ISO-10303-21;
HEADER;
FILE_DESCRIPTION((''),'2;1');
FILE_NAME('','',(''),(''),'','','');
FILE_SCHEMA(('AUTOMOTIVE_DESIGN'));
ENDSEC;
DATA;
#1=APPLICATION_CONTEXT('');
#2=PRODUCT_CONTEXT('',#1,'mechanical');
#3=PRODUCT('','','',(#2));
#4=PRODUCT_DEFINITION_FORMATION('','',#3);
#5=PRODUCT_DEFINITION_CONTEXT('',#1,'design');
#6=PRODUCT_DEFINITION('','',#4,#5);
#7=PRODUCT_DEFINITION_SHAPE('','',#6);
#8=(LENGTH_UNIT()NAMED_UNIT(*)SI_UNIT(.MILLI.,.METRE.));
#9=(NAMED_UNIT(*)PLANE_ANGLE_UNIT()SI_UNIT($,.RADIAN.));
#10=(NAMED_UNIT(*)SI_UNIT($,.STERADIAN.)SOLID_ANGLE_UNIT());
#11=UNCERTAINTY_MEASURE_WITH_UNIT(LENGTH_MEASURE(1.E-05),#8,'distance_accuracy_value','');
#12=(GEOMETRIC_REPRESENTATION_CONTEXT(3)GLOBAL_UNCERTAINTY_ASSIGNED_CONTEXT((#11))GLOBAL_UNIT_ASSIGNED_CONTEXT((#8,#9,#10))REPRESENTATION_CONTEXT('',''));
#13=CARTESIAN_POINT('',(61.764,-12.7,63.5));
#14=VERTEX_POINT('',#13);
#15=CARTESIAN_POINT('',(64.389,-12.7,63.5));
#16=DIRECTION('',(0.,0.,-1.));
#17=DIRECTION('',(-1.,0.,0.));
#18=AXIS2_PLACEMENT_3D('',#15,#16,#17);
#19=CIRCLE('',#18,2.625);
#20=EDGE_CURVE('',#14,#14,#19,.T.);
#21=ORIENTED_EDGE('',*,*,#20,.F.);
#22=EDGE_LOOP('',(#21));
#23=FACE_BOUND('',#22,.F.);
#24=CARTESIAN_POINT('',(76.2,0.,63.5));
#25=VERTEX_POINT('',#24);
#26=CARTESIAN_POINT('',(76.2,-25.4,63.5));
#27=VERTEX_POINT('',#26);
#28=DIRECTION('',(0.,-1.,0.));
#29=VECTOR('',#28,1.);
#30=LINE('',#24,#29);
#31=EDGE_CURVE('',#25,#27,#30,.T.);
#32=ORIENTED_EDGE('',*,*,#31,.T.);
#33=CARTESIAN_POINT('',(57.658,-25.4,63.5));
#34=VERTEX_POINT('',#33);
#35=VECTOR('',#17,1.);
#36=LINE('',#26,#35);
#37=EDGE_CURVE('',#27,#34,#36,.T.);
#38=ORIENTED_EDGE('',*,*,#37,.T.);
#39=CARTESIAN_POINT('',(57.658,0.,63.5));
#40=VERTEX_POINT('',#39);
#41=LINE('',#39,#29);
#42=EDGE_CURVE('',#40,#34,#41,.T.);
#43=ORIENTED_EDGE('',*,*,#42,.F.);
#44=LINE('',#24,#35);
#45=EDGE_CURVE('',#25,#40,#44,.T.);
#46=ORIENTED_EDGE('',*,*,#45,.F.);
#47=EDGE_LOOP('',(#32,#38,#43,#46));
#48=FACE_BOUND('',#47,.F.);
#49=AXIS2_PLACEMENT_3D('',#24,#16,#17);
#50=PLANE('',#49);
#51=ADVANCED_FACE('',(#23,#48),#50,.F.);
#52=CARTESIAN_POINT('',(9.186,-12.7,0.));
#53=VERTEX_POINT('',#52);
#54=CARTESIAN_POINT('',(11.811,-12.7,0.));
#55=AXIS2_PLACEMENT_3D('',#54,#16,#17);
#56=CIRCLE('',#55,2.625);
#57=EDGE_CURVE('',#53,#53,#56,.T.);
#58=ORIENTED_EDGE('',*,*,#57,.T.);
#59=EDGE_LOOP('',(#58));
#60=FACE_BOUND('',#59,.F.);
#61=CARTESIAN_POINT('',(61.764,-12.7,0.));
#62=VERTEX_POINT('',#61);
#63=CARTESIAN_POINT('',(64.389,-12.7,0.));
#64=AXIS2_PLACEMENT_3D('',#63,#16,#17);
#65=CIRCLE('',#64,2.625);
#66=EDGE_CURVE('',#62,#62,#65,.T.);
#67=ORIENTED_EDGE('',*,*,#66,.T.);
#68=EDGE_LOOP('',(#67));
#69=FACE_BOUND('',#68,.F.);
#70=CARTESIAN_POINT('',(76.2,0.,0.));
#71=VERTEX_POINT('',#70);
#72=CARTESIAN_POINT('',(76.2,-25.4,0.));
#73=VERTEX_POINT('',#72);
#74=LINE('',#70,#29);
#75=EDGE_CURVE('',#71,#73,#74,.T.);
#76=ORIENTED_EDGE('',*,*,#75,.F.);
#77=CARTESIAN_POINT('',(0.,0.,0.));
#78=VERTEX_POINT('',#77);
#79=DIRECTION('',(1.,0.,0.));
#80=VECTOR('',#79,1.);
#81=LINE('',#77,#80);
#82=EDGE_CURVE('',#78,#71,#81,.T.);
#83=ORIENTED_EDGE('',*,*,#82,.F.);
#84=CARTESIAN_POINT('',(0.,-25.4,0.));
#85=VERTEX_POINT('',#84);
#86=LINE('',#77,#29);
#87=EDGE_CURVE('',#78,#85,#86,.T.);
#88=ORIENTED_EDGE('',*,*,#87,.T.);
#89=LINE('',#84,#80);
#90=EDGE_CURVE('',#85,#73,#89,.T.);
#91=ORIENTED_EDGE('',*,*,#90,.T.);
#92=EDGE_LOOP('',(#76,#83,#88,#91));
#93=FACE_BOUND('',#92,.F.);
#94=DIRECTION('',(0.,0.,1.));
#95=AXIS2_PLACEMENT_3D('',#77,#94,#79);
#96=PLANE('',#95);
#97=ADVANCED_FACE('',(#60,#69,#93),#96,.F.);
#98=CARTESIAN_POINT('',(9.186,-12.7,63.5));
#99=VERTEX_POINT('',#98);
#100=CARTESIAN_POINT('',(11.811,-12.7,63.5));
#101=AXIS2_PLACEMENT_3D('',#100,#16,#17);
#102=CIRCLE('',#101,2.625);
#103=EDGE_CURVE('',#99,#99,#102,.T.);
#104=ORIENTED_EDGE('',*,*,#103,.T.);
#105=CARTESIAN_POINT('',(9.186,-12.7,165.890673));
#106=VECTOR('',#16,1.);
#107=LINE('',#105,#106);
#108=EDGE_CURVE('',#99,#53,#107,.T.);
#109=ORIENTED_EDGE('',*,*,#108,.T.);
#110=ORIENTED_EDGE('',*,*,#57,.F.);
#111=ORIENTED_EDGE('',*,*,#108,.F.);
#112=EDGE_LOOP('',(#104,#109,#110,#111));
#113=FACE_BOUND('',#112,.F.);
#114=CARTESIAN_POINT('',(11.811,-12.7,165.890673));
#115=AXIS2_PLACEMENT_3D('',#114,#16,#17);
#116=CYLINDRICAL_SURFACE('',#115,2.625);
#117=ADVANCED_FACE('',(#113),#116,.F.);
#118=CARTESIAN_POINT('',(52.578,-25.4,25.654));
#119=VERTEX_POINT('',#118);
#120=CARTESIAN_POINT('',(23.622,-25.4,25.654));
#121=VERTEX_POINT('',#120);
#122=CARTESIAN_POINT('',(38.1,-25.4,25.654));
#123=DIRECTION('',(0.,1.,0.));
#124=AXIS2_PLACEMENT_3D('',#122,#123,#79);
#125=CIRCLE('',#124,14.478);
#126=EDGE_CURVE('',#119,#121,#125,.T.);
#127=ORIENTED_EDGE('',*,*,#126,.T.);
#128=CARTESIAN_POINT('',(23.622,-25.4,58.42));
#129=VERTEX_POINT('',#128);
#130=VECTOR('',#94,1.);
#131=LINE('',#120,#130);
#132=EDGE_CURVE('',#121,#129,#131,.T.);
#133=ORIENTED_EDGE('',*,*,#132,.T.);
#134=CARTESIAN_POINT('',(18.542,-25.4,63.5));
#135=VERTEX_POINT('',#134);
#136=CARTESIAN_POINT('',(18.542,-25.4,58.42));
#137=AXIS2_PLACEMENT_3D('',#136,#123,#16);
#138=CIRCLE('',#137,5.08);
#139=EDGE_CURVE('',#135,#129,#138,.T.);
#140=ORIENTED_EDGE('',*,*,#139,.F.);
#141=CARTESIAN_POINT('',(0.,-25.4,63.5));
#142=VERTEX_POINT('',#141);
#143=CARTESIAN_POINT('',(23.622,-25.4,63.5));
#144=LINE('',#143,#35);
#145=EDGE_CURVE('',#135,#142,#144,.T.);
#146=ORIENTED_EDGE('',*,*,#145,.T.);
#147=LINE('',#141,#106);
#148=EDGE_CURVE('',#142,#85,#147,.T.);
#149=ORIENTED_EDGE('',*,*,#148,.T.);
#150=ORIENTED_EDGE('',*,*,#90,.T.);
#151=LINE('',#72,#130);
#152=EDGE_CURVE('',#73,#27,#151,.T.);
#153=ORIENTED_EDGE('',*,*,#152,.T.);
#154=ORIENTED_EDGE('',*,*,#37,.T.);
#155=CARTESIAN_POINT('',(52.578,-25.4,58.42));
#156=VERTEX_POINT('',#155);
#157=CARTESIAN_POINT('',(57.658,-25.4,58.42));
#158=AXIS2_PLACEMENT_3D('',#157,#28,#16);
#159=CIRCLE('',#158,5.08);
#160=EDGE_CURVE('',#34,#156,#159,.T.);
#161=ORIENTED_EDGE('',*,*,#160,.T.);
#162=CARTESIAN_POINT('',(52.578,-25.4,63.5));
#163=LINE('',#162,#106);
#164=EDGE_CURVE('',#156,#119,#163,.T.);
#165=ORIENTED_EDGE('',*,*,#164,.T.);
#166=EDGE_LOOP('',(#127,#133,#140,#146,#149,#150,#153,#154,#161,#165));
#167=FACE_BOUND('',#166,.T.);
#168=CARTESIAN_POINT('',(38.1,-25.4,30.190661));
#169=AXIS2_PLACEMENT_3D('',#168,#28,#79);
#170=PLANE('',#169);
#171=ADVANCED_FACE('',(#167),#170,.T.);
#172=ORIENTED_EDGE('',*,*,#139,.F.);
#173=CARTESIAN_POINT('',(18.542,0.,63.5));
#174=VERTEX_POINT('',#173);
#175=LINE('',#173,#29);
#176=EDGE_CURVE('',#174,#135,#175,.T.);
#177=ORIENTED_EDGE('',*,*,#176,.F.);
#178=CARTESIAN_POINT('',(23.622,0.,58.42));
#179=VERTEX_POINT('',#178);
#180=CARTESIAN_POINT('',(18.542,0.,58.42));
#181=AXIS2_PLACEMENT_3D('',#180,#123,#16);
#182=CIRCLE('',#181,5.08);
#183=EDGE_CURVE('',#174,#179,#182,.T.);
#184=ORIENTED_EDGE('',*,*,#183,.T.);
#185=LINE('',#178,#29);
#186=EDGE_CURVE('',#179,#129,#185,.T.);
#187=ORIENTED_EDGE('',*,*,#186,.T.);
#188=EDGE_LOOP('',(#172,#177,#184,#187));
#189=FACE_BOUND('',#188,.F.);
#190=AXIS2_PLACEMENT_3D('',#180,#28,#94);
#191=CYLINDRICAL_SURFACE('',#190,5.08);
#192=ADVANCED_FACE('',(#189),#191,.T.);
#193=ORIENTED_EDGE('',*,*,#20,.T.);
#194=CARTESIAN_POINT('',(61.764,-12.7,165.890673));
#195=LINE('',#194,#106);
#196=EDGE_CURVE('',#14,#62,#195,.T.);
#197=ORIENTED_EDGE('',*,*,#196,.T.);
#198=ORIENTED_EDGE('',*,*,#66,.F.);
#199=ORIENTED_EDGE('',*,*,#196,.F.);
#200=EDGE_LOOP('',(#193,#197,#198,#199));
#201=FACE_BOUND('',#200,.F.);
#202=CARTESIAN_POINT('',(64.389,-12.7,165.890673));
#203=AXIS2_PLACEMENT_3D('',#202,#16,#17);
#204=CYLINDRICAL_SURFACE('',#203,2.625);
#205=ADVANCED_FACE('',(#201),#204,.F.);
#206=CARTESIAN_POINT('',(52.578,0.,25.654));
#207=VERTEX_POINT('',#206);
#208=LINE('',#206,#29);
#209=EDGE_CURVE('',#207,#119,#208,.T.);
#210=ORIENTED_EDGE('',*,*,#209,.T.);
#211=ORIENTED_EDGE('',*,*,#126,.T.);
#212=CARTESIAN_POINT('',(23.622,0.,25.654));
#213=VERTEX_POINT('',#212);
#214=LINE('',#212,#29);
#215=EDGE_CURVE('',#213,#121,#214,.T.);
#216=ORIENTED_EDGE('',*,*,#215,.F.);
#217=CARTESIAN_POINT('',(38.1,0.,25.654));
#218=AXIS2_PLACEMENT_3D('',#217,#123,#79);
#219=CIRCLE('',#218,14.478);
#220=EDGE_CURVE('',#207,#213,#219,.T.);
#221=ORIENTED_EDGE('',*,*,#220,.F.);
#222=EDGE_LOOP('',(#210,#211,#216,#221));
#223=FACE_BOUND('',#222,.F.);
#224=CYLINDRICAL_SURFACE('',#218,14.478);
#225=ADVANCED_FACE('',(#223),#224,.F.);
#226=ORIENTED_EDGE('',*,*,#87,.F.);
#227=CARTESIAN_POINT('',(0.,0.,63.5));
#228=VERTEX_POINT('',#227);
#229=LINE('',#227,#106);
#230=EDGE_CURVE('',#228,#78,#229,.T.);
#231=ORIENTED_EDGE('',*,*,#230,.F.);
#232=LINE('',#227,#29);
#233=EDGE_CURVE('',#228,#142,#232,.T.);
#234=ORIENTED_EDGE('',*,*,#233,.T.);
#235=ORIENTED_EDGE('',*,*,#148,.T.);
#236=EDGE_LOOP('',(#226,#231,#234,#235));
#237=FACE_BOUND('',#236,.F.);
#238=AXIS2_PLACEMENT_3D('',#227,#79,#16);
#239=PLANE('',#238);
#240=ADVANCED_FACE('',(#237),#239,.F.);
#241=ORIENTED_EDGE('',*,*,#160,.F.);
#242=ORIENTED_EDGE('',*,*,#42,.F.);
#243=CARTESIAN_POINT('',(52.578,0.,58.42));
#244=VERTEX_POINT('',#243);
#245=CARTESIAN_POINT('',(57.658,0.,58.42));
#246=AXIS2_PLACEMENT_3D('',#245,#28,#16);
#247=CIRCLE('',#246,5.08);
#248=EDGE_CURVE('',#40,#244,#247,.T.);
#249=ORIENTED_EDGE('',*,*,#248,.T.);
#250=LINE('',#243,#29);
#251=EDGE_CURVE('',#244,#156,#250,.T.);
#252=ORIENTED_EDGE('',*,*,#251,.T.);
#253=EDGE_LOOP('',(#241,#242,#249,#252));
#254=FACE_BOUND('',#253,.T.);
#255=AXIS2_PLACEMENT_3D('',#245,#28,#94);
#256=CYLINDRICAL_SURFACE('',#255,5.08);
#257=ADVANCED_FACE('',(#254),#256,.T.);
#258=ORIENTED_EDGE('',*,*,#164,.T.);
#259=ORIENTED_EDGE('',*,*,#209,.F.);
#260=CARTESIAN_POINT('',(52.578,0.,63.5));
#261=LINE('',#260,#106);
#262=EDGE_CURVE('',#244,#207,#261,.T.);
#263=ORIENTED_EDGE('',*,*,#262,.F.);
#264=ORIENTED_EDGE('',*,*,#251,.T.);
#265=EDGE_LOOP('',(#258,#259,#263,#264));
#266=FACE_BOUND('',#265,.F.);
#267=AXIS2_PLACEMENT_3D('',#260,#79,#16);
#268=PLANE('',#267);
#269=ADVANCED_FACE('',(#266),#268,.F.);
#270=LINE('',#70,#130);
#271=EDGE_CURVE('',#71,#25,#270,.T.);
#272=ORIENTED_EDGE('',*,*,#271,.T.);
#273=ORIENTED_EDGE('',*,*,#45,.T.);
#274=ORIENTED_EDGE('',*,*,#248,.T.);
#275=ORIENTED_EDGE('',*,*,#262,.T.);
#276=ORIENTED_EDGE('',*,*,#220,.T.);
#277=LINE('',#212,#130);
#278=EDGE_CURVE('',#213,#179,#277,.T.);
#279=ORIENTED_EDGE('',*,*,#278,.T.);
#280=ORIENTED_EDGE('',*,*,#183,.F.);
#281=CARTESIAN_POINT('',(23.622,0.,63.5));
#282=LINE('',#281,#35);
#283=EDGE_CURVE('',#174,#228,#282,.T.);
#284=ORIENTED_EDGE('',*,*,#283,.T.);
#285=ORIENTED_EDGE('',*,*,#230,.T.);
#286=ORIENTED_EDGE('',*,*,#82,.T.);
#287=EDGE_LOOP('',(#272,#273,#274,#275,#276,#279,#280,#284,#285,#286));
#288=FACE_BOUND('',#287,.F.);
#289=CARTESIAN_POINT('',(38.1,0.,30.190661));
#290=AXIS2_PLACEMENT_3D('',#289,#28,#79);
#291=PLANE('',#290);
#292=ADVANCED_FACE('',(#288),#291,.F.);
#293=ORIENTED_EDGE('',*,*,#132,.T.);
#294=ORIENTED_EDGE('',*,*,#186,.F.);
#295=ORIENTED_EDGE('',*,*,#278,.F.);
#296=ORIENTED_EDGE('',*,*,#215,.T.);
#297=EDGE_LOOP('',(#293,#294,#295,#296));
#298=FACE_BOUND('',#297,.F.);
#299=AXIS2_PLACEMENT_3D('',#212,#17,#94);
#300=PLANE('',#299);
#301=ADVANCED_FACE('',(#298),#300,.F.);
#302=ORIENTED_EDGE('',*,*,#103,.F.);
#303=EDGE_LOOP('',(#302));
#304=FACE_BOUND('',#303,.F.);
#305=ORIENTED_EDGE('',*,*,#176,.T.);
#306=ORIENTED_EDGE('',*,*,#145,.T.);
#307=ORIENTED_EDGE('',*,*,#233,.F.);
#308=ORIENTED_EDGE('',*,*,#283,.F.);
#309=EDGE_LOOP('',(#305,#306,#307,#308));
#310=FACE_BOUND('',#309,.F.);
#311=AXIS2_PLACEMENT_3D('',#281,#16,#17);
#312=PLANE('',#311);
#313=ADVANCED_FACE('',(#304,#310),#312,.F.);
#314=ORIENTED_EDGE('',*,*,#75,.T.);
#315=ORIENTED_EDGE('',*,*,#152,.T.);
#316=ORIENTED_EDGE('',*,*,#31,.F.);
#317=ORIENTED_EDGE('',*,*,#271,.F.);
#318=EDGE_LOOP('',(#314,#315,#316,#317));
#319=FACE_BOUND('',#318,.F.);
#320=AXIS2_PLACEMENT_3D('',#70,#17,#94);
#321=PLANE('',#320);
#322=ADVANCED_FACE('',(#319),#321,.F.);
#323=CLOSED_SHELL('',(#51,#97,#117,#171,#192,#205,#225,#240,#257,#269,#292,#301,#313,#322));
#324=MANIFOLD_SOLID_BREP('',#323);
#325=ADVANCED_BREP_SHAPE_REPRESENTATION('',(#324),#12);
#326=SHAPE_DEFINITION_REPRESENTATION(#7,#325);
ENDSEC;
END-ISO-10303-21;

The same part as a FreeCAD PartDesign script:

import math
import FreeCAD as App
import Part
import Sketcher
from FreeCAD import Vector
Q = App.Units.Quantity


def edges_at(feature, points):
    """Names of the edges that pass closest to the given points."""
    edges = feature.Shape.Edges
    near = lambda p: min(range(len(edges)), key=lambda i: edges[i].distToShape(Part.Vertex(*p))[0])
    return sorted({f"Edge{near(p) + 1}" for p in points})

doc = App.newDocument("Part")
body = doc.addObject("PartDesign::Body", "Body")

# Sketch on XZ plane
sketch1 = body.newObject("Sketcher::SketchObject", "Sketch")
sketch1.AttachmentSupport = (doc.getObject("XZ_Plane"), [""])
sketch1.MapMode = "FlatFace"
sketch1.addGeometry([
    Part.LineSegment(Vector(0, 63.5, 0), Vector(0, 0, 0)),  # 0
    Part.LineSegment(Vector(0, 0, 0), Vector(76.2, 0, 0)),  # 1
    Part.LineSegment(Vector(76.2, 0, 0), Vector(76.2, 63.5, 0)),  # 2
    Part.LineSegment(Vector(76.2, 63.5, 0), Vector(52.578, 63.5, 0)),  # 3
    Part.LineSegment(Vector(52.578, 63.5, 0), Vector(52.578, 25.654, 0)),  # 4
    Part.ArcOfCircle(Part.Circle(Vector(38.1, 25.654, 0), Vector(0, 0, 1), 14.478), math.radians(180), math.radians(360)),  # 5
    Part.LineSegment(Vector(23.622, 25.654, 0), Vector(23.622, 63.5, 0)),  # 6
    Part.LineSegment(Vector(23.622, 63.5, 0), Vector(0, 63.5, 0)),  # 7
], False)
sketch1.addConstraint([
    Sketcher.Constraint("Coincident", 0, 2, 1, 1),
    Sketcher.Constraint("Coincident", 1, 2, 2, 1),
    Sketcher.Constraint("Coincident", 2, 2, 3, 1),
    Sketcher.Constraint("Coincident", 3, 2, 4, 1),
    Sketcher.Constraint("Tangent", 4, 2, 5, 2),
    Sketcher.Constraint("Tangent", 5, 1, 6, 1),
    Sketcher.Constraint("Coincident", 6, 2, 7, 1),
    Sketcher.Constraint("Coincident", 7, 2, 0, 1),
    Sketcher.Constraint("Vertical", 0),
    Sketcher.Constraint("Horizontal", 1),
    Sketcher.Constraint("Vertical", 2),
    Sketcher.Constraint("Horizontal", 3),
    Sketcher.Constraint("Vertical", 4),
    Sketcher.Constraint("Vertical", 6),
    Sketcher.Constraint("Horizontal", 7),
    Sketcher.Constraint("Coincident", 0, 2, -1, 1),
    Sketcher.Constraint("Horizontal", 3, 2, 6, 2),
    Sketcher.Constraint("Equal", 3, 7),
    Sketcher.Constraint("DistanceX", 1, 1, 1, 2, Q("3 in")),
    Sketcher.Constraint("Radius", 5, Q("0.57 in")),
    Sketcher.Constraint("DistanceY", 0, 2, 0, 1, Q("2.5 in")),
    Sketcher.Constraint("DistanceY", 4, 2, 4, 1, Q("1.49 in")),
])
pad1 = body.newObject("PartDesign::Pad", "Pad")
pad1.Profile = sketch1
pad1.Length = Q("1 in")

# Sketch on XY plane
sketch2 = body.newObject("Sketcher::SketchObject", "Sketch001")
sketch2.AttachmentSupport = (doc.getObject("XY_Plane"), [""])
sketch2.MapMode = "FlatFace"
sketch2.AttachmentOffset = App.Placement(Vector(0, 0, 2.5 * 25.4), App.Rotation())
sketch2.addGeometry(Part.Circle(Vector(11.811, -12.7, 0), Vector(0, 0, 1), 2.625), False)
sketch2.addConstraint([
    Sketcher.Constraint("DistanceY", 0, 3, -1, 1, Q("0.5 in")),
    Sketcher.Constraint("Diameter", 0, Q("5.25 mm")),
    Sketcher.Constraint("DistanceX", -1, 1, 0, 3, Q("0.465 in")),
])
doc.recompute()
hole = body.newObject("PartDesign::Hole", "Hole")
hole.Profile = sketch2
hole.ThreadType = "None"
hole.Diameter = 5.25
hole.DepthType = "ThroughAll"

# Sketch on XY plane
sketch3 = body.newObject("Sketcher::SketchObject", "Sketch002")
sketch3.AttachmentSupport = (doc.getObject("XY_Plane"), [""])
sketch3.MapMode = "FlatFace"
sketch3.AttachmentOffset = App.Placement(Vector(0, 0, 2.5 * 25.4), App.Rotation())
sketch3.addGeometry(Part.Circle(Vector(64.389, -12.7, 0), Vector(0, 0, 1), 2.625), False)
sketch3.addConstraint([
    Sketcher.Constraint("DistanceY", 0, 3, -1, 1, Q("0.5 in")),
    Sketcher.Constraint("Diameter", 0, Q("5.25 mm")),
    Sketcher.Constraint("DistanceX", -1, 1, 0, 3, Q("2.535 in")),
])
doc.recompute()
hole2 = body.newObject("PartDesign::Hole", "Hole001")
hole2.Profile = sketch3
hole2.ThreadType = "None"
hole2.Diameter = 5.25
hole2.DepthType = "ThroughAll"
doc.recompute()

fillet = body.newObject("PartDesign::Fillet", "Fillet")
fillet.Base = (hole2, edges_at(hole2, [(23.622, -12.7, 63.5), (52.578, -12.7, 63.5)]))
fillet.Radius = Q("0.2 in")

doc.recompute()
